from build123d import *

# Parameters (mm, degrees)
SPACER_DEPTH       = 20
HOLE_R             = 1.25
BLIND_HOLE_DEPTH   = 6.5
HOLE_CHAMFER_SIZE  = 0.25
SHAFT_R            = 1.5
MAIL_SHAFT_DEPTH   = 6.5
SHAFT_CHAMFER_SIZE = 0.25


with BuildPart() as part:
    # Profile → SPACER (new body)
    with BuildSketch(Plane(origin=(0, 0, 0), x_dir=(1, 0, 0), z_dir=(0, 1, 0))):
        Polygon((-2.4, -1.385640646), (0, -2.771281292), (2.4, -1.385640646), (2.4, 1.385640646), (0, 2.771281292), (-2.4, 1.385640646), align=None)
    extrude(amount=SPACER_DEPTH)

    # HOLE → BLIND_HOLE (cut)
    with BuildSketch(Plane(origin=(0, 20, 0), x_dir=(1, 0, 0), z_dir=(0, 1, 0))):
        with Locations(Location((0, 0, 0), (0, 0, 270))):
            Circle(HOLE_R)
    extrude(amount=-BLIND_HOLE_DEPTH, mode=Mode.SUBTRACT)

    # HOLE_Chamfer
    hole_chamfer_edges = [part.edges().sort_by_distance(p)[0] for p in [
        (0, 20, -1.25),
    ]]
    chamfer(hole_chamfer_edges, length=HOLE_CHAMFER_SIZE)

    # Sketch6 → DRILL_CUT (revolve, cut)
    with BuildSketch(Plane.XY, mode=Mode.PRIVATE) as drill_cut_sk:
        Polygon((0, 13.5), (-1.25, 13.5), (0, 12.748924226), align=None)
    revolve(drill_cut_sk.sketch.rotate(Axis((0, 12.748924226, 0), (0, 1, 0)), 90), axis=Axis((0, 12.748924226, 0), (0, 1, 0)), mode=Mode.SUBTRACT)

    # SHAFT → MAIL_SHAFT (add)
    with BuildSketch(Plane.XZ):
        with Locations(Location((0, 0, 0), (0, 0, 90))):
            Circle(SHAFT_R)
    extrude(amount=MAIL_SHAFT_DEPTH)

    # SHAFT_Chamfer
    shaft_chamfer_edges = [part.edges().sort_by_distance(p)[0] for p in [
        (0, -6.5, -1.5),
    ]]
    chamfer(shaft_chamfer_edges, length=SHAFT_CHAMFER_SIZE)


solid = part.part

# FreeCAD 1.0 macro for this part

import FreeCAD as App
import Part
import Sketcher

V = App.Vector
Q = App.Units.Quantity


def edges_at(feature, points):
    """Names of the edges that pass closest to the given points."""
    edges = feature.Shape.Edges
    near = lambda p: min(range(len(edges)), key=lambda i: edges[i].distToShape(Part.Vertex(*p))[0])
    return sorted({f"Edge{near(p) + 1}" for p in points})


def add_polygon(sketch, points):
    """Adds a closed chain of lines whose ends are joined by coincident constraints."""
    first, n = sketch.GeometryCount, len(points)
    for a, b in zip(points, points[1:] + points[:1]):
        sketch.addGeometry(Part.LineSegment(App.Vector(*a, 0), App.Vector(*b, 0)), False)
    for i in range(n):
        sketch.addConstraint(Sketcher.Constraint("Coincident", first + i, 2, first + (i + 1) % n, 1))

doc = App.newDocument("Part")
body = doc.addObject("PartDesign::Body", "Body")

sketch1 = body.newObject("Sketcher::SketchObject", "Sketch")
sketch1.AttachmentSupport = (doc.getObject("XZ_Plane"), [""])
sketch1.MapMode = "FlatFace"
add_polygon(sketch1, [(-2.4, 1.4), (0, 2.8), (2.4, 1.4), (2.4, -1.4), (0, -2.8), (-2.4, -1.4)])
sketch1.addConstraint(Sketcher.Constraint("Vertical", 2))
sketch1.addConstraint(Sketcher.Constraint("Vertical", 5))
sketch1.addConstraint(Sketcher.Constraint("Symmetric", 0, 2, 3, 2, -1, 1))
sketch1.addConstraint(Sketcher.Constraint("Symmetric", 1, 2, 4, 2, -1, 1))
sketch1.addConstraint(Sketcher.Constraint("PointOnObject", 0, 2, -2))
sketch1.addConstraint(Sketcher.Constraint("Parallel", 0, 3))
sketch1.addConstraint(Sketcher.Constraint("Horizontal", 2, 2, 4, 2))
sketch1.addConstraint(Sketcher.Constraint("Angle", 0, Q("30 deg")))
sketch1.addConstraint(Sketcher.Constraint("DistanceX", -1, 1, 1, 2, Q("2.4 mm")))
sketch1.addConstraint(Sketcher.Constraint("DistanceY", 2, 2, 2, 1, Q("2.771281 mm")))
pad1 = body.newObject("PartDesign::Pad", "Pad")
pad1.Profile = sketch1
pad1.Length = 20
pad1.Reversed = True

sketch2 = body.newObject("Sketcher::SketchObject", "Sketch001")
sketch2.AttachmentSupport = (doc.getObject("XZ_Plane"), [""])
sketch2.MapMode = "FlatFace"
sketch2.AttachmentOffset = App.Placement(V(0, 0, -20), App.Rotation())
sketch2.addGeometry(Part.Circle(V(0, 0, 0), V(0, 0, 1), 1.2), False)
sketch2.addConstraint(Sketcher.Constraint("Coincident", 0, 3, -1, 1))
sketch2.addConstraint(Sketcher.Constraint("Diameter", 0, Q("2.5 mm")))
pocket1 = body.newObject("PartDesign::Pocket", "Pocket")
pocket1.Profile = sketch2
pocket1.Length = 6.5
pocket1.Reversed = True
doc.recompute()

chamfer = body.newObject("PartDesign::Chamfer", "Chamfer")
chamfer.Base = (pocket1, edges_at(pocket1, [(0, 20, -1.25)]))
chamfer.Size = 0.25

sketch3 = body.newObject("Sketcher::SketchObject", "Sketch002")
sketch3.AttachmentSupport = (doc.getObject("XY_Plane"), [""])
sketch3.MapMode = "FlatFace"
add_polygon(sketch3, [(0, 13.5), (-1.2, 13.5), (0, 12.7)])
sketch3.addConstraint(Sketcher.Constraint("Horizontal", 0))
sketch3.addConstraint(Sketcher.Constraint("Vertical", 2))
sketch3.addConstraint(Sketcher.Constraint("PointOnObject", 1, 2, -2))
sketch3.addConstraint(Sketcher.Constraint("Angle", 1, Q("-31 deg")))
sketch3.addConstraint(Sketcher.Constraint("DistanceX", 0, 2, 0, 1, Q("1.25 mm")))
sketch3.addConstraint(Sketcher.Constraint("DistanceY", -1, 1, 0, 2, Q("13.5 mm")))
groove = body.newObject("PartDesign::Groove", "Groove")
groove.Profile = sketch3
groove.ReferenceAxis = (sketch3, ["V_Axis"])
groove.Angle = 360

sketch4 = body.newObject("Sketcher::SketchObject", "Sketch003")
sketch4.AttachmentSupport = (doc.getObject("XZ_Plane"), [""])
sketch4.MapMode = "FlatFace"
sketch4.addGeometry(Part.Circle(V(0, 0, 0), V(0, 0, 1), 1.5), False)
sketch4.addConstraint(Sketcher.Constraint("Coincident", 0, 3, -1, 1))
sketch4.addConstraint(Sketcher.Constraint("Diameter", 0, Q("3 mm")))
pad2 = body.newObject("PartDesign::Pad", "Pad001")
pad2.Profile = sketch4
pad2.Length = 6.5
doc.recompute()

chamfer2 = body.newObject("PartDesign::Chamfer", "Chamfer001")
chamfer2.Base = (pad2, edges_at(pad2, [(0, -6.5, -1.5)]))
chamfer2.Size = 0.25

doc.recompute()
